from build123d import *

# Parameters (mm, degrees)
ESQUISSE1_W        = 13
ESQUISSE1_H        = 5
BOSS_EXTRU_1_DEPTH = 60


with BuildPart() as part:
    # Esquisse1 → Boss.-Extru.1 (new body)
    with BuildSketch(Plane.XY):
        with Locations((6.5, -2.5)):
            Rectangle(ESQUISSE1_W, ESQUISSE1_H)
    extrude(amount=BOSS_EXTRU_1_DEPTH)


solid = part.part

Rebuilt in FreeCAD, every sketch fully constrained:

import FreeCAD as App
import Part
import Sketcher

V = App.Vector
Q = App.Units.Quantity


def add_polygon(sketch, points):
    """Adds a closed chain of lines whose ends are joined by coincident constraints."""
    first, n = sketch.GeometryCount, len(points)
    for a, b in zip(points, points[1:] + points[:1]):
        sketch.addGeometry(Part.LineSegment(App.Vector(*a, 0), App.Vector(*b, 0)), False)
    for i in range(n):
        sketch.addConstraint(Sketcher.Constraint("Coincident", first + i, 2, first + (i + 1) % n, 1))

doc = App.newDocument("Part")
body = doc.addObject("PartDesign::Body", "Body")

sketch1 = body.newObject("Sketcher::SketchObject", "Sketch")
sketch1.AttachmentSupport = (doc.getObject("XY_Plane"), [""])
sketch1.MapMode = "FlatFace"
add_polygon(sketch1, [(0, 0), (0, -5), (13, -5), (13, 0)])
sketch1.addConstraint([
    Sketcher.Constraint("Vertical", 0),
    Sketcher.Constraint("Horizontal", 1),
    Sketcher.Constraint("Vertical", 2),
    Sketcher.Constraint("Horizontal", 3),
    Sketcher.Constraint("Coincident", 3, 2, -1, 1),
    Sketcher.Constraint("DistanceX", 1, 1, 1, 2, Q("13 mm")),
    Sketcher.Constraint("DistanceY", 0, 2, 0, 1, Q("5 mm")),
])
pad1 = body.newObject("PartDesign::Pad", "Pad")
pad1.Profile = sketch1
pad1.Length = 60

doc.recompute()
